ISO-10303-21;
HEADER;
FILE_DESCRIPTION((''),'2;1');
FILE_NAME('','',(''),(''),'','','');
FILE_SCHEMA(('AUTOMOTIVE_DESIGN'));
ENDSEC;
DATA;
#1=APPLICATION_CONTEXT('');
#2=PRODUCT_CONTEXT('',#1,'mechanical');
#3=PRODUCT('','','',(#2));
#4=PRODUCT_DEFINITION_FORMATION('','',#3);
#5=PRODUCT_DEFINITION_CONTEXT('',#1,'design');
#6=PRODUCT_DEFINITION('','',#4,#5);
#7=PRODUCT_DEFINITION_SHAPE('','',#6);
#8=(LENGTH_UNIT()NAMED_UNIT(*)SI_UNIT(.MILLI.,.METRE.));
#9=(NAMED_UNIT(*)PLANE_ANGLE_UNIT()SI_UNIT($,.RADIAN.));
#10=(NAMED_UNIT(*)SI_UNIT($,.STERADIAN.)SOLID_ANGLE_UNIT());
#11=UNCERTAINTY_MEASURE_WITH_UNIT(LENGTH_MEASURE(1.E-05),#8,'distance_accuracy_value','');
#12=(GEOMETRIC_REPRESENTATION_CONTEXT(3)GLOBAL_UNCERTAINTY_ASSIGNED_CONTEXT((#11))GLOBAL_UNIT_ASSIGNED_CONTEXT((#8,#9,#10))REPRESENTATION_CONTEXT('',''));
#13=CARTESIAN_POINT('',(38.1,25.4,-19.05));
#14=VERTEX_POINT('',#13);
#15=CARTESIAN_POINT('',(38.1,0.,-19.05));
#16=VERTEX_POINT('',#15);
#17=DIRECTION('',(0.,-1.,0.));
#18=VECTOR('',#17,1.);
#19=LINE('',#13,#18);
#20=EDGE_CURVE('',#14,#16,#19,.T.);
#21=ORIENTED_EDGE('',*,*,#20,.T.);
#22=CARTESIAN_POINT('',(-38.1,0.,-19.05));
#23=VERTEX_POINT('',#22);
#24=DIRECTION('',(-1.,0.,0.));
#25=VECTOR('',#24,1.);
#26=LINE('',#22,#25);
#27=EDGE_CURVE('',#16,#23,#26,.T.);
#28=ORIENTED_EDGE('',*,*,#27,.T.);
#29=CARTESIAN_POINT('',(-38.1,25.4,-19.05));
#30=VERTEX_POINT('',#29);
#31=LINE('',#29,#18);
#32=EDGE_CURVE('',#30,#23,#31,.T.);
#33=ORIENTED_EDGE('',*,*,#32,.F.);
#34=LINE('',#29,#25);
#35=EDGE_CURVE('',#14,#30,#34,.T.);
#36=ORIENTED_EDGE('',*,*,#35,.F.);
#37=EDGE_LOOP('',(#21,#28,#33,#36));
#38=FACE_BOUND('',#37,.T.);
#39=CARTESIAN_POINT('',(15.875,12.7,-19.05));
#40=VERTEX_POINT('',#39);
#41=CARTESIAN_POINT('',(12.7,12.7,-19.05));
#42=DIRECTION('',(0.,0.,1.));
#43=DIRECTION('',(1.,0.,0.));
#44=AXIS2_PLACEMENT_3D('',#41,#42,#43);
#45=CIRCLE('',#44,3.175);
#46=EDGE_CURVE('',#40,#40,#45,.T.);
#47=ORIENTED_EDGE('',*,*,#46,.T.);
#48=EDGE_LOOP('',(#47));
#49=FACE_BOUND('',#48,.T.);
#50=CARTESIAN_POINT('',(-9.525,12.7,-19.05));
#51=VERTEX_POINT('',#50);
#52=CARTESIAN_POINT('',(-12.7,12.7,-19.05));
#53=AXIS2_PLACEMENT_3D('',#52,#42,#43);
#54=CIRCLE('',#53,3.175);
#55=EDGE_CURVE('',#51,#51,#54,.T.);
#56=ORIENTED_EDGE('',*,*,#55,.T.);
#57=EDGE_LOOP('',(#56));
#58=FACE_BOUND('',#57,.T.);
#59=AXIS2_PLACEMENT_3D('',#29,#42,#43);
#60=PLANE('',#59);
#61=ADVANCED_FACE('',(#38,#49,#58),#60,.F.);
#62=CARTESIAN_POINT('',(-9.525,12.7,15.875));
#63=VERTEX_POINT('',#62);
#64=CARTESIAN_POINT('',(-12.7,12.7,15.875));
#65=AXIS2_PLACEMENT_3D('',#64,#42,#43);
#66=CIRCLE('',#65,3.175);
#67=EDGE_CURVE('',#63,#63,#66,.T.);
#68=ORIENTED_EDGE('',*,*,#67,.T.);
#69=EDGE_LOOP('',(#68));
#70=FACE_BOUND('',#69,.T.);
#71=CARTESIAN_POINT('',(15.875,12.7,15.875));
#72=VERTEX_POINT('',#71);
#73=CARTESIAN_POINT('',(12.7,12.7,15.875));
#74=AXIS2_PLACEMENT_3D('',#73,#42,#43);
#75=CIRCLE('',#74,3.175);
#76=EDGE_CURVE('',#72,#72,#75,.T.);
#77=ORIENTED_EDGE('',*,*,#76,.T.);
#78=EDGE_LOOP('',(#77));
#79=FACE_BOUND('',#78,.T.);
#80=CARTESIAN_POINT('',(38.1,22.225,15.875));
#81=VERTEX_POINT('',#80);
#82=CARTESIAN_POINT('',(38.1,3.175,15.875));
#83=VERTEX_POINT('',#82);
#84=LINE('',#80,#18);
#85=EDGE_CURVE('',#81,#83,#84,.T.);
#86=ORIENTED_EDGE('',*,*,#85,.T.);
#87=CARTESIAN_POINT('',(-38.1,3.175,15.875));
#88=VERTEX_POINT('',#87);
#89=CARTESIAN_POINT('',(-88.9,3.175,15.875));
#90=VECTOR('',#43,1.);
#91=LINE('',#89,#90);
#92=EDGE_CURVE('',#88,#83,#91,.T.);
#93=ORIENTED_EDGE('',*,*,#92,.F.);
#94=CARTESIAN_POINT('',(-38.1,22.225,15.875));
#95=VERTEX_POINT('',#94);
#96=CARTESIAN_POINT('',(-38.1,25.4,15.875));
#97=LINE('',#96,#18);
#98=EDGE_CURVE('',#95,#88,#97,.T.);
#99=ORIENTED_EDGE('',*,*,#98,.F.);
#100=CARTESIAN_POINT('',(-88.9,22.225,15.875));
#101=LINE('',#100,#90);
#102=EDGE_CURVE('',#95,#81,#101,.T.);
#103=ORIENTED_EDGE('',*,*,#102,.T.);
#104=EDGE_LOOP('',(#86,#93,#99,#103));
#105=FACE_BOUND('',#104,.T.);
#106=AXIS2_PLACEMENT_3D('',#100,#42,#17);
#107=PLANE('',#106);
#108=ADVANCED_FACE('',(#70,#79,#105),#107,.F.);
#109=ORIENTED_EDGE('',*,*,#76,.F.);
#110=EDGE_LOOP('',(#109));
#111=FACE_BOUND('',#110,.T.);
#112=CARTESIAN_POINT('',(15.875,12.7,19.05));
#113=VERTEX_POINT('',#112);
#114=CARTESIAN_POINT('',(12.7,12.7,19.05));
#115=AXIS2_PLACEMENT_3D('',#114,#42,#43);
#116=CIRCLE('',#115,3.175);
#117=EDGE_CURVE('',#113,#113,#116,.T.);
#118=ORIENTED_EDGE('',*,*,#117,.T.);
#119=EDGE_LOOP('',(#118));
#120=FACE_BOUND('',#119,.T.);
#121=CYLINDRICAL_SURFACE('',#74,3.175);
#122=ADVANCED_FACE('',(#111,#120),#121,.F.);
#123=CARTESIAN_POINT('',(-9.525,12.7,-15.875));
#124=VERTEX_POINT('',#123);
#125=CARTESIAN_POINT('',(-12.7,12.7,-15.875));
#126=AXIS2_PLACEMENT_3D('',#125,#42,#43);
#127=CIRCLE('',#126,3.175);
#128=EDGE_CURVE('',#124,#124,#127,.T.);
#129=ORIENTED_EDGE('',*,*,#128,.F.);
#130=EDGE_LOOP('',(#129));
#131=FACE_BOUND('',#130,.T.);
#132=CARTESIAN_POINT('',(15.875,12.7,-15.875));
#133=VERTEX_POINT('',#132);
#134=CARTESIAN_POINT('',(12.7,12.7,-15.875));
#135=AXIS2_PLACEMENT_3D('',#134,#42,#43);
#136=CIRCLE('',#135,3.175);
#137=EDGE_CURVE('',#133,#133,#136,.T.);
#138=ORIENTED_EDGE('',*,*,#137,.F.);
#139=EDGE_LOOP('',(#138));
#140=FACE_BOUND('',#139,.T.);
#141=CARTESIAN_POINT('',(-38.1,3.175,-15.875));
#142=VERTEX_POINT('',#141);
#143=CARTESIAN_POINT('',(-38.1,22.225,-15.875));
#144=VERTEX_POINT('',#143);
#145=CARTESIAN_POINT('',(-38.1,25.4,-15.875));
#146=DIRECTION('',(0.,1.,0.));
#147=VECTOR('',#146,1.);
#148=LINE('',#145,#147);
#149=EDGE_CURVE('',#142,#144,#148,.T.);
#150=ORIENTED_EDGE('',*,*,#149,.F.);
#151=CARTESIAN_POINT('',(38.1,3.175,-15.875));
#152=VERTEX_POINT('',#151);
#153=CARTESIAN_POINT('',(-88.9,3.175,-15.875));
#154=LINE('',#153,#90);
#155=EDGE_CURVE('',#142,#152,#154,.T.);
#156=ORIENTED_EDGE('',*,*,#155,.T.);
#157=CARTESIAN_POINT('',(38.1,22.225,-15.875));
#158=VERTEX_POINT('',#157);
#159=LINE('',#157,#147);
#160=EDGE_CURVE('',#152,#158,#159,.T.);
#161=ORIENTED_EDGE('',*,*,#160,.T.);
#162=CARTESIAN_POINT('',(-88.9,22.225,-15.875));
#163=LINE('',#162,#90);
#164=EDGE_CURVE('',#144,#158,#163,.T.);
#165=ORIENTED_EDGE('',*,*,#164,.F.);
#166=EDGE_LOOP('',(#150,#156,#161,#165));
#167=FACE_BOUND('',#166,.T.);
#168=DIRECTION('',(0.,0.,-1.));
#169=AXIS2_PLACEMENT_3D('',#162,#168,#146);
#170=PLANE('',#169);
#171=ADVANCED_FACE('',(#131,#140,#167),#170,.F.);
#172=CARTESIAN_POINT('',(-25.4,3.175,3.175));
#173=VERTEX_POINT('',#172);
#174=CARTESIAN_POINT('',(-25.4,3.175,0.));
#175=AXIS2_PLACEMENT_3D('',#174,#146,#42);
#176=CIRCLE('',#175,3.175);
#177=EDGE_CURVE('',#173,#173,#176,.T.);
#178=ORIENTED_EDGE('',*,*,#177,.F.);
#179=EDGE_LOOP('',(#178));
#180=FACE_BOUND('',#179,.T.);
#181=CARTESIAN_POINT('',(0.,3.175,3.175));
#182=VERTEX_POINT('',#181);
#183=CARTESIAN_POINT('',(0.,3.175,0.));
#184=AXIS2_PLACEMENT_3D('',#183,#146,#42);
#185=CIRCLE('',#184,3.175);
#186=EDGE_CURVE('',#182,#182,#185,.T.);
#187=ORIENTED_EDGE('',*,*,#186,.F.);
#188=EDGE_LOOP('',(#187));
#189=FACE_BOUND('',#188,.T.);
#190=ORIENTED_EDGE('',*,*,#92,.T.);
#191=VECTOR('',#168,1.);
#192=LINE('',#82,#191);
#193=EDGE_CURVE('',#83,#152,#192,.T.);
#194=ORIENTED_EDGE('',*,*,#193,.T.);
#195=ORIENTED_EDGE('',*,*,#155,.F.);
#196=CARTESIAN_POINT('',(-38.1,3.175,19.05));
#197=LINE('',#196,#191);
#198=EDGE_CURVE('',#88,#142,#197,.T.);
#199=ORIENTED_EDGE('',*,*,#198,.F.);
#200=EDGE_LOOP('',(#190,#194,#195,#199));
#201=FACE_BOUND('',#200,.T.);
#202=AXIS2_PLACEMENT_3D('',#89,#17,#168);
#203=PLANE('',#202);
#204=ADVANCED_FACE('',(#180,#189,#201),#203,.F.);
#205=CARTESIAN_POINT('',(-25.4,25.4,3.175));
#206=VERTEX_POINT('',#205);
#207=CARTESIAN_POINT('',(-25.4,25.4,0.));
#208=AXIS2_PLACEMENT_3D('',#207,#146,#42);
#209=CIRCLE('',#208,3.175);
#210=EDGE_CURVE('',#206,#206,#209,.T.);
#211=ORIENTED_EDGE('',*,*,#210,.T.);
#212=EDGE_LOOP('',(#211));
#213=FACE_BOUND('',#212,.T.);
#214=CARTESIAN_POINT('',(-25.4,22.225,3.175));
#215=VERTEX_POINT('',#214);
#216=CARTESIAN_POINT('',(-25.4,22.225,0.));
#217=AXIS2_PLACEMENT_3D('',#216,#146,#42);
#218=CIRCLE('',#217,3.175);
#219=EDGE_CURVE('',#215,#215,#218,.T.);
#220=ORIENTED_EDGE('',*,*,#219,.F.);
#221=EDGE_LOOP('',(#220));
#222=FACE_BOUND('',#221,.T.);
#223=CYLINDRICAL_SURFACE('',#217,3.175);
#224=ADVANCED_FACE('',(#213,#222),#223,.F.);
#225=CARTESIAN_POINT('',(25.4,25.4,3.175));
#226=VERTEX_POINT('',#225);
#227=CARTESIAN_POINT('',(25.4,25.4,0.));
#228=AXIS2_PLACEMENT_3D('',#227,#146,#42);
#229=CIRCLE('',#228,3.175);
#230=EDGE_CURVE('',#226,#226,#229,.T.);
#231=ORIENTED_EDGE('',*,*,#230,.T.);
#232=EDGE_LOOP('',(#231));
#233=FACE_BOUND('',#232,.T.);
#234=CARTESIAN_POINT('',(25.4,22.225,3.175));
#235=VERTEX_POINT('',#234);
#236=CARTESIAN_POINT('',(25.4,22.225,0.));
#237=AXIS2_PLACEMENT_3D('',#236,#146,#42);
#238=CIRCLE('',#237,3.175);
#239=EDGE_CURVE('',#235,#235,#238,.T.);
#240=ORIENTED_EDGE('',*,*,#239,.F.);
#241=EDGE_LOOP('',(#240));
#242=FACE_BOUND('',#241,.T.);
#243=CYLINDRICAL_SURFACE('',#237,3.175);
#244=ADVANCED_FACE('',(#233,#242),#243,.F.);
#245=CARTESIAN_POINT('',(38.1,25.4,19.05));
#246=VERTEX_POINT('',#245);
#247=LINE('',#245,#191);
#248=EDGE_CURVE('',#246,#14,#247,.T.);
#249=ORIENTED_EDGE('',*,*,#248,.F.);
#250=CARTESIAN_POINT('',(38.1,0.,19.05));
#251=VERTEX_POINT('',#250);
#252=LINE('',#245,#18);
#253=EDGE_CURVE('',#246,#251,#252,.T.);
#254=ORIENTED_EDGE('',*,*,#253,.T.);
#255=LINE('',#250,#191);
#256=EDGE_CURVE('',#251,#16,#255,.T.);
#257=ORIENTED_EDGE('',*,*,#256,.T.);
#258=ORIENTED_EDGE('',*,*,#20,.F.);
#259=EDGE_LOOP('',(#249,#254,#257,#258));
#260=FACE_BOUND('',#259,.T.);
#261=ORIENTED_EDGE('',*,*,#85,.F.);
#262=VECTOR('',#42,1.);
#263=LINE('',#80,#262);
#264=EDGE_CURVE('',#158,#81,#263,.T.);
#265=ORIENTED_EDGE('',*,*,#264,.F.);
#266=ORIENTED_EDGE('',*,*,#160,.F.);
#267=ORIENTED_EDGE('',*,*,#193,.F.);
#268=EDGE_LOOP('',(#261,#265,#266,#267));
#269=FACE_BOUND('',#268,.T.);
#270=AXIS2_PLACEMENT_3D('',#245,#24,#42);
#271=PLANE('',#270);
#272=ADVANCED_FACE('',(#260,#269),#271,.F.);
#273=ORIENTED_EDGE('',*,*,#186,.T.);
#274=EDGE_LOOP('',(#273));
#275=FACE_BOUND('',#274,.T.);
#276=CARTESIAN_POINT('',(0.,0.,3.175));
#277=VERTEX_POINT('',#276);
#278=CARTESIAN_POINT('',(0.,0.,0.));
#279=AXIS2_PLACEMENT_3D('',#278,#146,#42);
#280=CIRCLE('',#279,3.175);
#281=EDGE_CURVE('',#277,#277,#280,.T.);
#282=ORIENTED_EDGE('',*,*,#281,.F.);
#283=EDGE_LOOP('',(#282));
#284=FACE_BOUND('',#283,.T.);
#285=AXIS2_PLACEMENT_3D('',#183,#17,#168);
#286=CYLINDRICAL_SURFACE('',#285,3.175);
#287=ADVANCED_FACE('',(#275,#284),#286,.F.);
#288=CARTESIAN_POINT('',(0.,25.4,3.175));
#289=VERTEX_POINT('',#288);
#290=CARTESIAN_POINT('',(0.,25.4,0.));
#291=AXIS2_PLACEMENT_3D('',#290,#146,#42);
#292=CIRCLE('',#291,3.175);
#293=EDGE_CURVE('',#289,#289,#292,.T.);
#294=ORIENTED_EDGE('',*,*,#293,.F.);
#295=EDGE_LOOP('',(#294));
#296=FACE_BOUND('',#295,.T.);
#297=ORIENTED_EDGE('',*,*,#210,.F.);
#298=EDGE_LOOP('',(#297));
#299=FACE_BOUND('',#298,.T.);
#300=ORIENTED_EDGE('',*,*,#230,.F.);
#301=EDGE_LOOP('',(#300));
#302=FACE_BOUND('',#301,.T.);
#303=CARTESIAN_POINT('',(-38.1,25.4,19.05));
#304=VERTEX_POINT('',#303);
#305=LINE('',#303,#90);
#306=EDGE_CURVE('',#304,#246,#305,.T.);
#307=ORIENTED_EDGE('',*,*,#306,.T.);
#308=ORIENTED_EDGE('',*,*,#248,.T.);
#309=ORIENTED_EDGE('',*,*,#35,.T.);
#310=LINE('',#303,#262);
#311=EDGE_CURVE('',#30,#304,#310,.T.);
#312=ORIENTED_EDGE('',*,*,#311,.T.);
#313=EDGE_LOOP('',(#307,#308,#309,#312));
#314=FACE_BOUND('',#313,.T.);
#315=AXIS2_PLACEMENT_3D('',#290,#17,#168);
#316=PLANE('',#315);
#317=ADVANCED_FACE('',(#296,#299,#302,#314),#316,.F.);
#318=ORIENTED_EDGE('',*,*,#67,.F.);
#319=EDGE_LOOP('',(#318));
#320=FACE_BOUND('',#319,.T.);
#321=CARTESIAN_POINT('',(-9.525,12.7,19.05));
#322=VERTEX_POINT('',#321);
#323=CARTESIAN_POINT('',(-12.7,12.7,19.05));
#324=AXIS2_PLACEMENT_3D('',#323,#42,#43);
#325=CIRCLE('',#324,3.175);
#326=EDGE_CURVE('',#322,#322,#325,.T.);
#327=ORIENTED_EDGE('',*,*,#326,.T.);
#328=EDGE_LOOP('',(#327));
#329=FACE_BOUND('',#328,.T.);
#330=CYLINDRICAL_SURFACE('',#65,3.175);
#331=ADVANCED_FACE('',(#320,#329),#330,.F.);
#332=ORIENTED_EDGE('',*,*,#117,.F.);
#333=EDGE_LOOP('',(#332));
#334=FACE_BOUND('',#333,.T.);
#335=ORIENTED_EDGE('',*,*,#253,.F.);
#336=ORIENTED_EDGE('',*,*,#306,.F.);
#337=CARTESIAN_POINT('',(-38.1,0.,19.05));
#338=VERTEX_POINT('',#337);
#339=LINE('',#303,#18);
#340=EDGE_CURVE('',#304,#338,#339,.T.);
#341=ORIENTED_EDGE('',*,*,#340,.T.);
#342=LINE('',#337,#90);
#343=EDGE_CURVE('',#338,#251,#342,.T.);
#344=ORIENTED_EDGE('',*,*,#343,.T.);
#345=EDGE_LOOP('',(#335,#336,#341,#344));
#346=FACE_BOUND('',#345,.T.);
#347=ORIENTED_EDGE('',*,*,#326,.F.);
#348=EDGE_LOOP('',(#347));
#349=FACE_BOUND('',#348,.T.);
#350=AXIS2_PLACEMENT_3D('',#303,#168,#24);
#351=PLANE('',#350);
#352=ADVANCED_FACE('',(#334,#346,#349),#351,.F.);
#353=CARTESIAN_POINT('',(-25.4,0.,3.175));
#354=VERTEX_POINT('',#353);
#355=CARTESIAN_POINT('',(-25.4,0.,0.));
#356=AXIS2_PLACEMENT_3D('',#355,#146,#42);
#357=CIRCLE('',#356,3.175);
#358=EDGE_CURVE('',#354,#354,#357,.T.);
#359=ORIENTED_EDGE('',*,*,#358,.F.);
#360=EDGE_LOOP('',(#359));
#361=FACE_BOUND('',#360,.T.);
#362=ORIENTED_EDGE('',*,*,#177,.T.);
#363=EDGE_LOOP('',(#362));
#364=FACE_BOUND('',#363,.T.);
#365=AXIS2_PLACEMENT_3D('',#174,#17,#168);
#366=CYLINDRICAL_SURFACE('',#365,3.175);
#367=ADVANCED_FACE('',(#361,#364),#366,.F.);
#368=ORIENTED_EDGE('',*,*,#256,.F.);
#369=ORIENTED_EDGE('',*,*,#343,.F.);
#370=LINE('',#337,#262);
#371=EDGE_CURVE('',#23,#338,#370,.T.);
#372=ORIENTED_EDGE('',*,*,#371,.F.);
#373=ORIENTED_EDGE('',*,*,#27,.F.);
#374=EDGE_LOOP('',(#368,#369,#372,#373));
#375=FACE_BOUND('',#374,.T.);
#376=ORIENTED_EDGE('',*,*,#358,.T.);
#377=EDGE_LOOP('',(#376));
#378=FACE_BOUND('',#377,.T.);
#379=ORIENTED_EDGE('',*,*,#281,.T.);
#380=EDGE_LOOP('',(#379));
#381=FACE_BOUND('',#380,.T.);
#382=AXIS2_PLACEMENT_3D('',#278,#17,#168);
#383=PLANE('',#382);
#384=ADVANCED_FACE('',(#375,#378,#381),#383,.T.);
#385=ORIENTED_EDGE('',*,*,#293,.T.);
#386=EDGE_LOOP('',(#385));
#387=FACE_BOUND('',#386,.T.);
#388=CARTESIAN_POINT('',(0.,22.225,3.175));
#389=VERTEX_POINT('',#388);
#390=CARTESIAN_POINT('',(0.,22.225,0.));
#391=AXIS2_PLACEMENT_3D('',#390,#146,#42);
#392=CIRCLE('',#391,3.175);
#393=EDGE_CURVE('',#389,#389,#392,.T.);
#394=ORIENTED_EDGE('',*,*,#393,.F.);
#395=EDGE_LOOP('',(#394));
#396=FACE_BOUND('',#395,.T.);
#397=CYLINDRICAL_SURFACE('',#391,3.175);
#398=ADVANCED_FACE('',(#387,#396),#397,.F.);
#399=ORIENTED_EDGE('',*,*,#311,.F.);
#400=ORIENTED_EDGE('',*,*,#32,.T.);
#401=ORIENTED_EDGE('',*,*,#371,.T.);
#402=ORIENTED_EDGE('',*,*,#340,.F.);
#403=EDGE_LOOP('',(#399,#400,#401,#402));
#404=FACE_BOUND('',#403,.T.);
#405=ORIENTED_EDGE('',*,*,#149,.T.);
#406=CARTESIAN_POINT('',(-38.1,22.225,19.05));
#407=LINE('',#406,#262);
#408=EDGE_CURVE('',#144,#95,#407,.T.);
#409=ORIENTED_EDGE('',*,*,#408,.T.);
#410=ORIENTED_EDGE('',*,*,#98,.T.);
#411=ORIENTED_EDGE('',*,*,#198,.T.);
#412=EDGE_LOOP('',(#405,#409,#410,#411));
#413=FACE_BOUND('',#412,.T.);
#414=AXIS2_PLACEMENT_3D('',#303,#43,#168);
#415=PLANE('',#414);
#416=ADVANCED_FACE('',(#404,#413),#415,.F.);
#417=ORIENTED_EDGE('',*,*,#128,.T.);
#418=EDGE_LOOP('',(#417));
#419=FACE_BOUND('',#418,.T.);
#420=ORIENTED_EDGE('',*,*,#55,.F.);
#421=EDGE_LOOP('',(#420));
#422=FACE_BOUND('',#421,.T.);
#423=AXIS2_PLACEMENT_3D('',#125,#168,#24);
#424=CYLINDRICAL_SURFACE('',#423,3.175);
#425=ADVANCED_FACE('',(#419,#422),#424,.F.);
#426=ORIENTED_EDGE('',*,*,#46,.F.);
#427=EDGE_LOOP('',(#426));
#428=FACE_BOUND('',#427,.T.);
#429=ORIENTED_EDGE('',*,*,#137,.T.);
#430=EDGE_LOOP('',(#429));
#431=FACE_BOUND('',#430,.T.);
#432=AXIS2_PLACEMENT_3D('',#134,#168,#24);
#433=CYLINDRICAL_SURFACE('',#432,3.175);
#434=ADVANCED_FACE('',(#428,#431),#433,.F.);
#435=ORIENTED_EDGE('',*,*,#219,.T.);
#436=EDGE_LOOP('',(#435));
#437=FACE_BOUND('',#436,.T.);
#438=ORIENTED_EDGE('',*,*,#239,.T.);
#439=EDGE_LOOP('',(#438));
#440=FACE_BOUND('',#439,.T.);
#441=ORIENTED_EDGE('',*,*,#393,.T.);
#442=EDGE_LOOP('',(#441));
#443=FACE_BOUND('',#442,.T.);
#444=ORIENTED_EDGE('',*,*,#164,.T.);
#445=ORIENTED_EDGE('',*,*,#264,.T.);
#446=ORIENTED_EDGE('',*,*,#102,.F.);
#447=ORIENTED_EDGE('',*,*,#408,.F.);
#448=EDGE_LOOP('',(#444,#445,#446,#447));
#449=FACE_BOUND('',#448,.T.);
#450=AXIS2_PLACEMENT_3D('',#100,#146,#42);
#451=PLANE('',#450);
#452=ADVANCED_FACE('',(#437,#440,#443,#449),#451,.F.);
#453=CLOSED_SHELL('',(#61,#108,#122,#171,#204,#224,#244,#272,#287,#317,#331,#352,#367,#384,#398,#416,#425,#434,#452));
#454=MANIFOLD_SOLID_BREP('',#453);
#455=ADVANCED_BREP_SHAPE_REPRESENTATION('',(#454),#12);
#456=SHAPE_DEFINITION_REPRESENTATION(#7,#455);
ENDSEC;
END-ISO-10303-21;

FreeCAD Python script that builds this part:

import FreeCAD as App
import Part
import Sketcher

V = App.Vector
Q = App.Units.Quantity


def add_polygon(sketch, points):
    """Adds a closed chain of lines whose ends are joined by coincident constraints."""
    first, n = sketch.GeometryCount, len(points)
    for a, b in zip(points, points[1:] + points[:1]):
        sketch.addGeometry(Part.LineSegment(App.Vector(*a, 0), App.Vector(*b, 0)), False)
    for i in range(n):
        sketch.addConstraint(Sketcher.Constraint("Coincident", first + i, 2, first + (i + 1) % n, 1))

doc = App.newDocument("Part")
body = doc.addObject("PartDesign::Body", "Body")

sketch1 = body.newObject("Sketcher::SketchObject", "Sketch")
sketch1.AttachmentSupport = (doc.getObject("XZ_Plane"), [""])
sketch1.MapMode = "FlatFace"
add_polygon(sketch1, [(-38, -19), (-38, 19), (38, 19), (38, -19)])
sketch1.addConstraint([
    Sketcher.Constraint("Vertical", 0),
    Sketcher.Constraint("Horizontal", 1),
    Sketcher.Constraint("Vertical", 2),
    Sketcher.Constraint("Horizontal", 3),
    Sketcher.Constraint("Symmetric", 0, 2, 2, 2, -1, 1),
    Sketcher.Constraint("DistanceX", 1, 1, 1, 2, Q("3 in")),
    Sketcher.Constraint("DistanceY", 0, 1, 0, 2, Q("1.5 in")),
])
pad1 = body.newObject("PartDesign::Pad", "Pad")
pad1.Profile = sketch1
pad1.Length = Q("1 in")
pad1.Reversed = True

sketch2 = body.newObject("Sketcher::SketchObject", "Sketch001")
sketch2.AttachmentSupport = (doc.getObject("YZ_Plane"), [""])
sketch2.MapMode = "FlatFace"
sketch2.AttachmentOffset = App.Placement(V(0, 0, 1.5 * 25.4), App.Rotation())
add_polygon(sketch2, [(22, 16), (3, 16), (3, -16), (22, -16)])
sketch2.addConstraint([
    Sketcher.Constraint("Horizontal", 0),
    Sketcher.Constraint("Vertical", 1),
    Sketcher.Constraint("Horizontal", 2),
    Sketcher.Constraint("Vertical", 3),
    Sketcher.Constraint("DistanceX", 0, 2, 0, 1, Q("0.75 in")),
    Sketcher.Constraint("DistanceY", 1, 2, 1, 1, Q("1.25 in")),
    Sketcher.Constraint("DistanceX", -1, 1, 0, 2, Q("0.125 in")),
    Sketcher.Constraint("DistanceY", -1, 1, 0, 2, Q("0.625 in")),
])
pocket1 = body.newObject("PartDesign::Pocket", "Pocket")
pocket1.Profile = sketch2
pocket1.Length = Q("5 in")

sketch3 = body.newObject("Sketcher::SketchObject", "Sketch002")
sketch3.AttachmentSupport = (doc.getObject("XZ_Plane"), [""])
sketch3.MapMode = "FlatFace"
sketch3.AttachmentOffset = App.Placement(V(0, 0, -1 * 25.4), App.Rotation())
sketch3.addGeometry([
    Part.Circle(V(-25.4, 0, 0), V(0, 0, 1), 3.2),
    Part.Circle(V(0, 0, 0), V(0, 0, 1), 3.2),
], False)
sketch3.addConstraint([
    Sketcher.Constraint("Coincident", 1, 3, -1, 1),
    Sketcher.Constraint("Equal", 0, 1),
    Sketcher.Constraint("PointOnObject", 0, 3, -1),
    Sketcher.Constraint("Diameter", 0, Q("0.25 in")),
    Sketcher.Constraint("DistanceX", 0, 3, -1, 1, Q("1 in")),
])
pocket2 = body.newObject("PartDesign::Pocket", "Pocket001")
pocket2.Profile = sketch3
pocket2.Length = Q("0.125 in")
pocket2.Reversed = True
doc.recompute()

datumplane = body.newObject("PartDesign::Plane", "DatumPlane")
datumplane.AttachmentSupport = (doc.getObject("XZ_Plane"), [""])
datumplane.MapMode = "FlatFace"
datumplane.AttachmentOffset = App.Placement(V(0, 0, -0.5 * 25.4), App.Rotation())
mirrored = body.newObject("PartDesign::Mirrored", "Mirrored")
mirrored.Originals = [pocket2]
mirrored.MirrorPlane = (datumplane, [""])
body.Tip = mirrored

sketch4 = body.newObject("Sketcher::SketchObject", "Sketch003")
sketch4.AttachmentSupport = (doc.getObject("XY_Plane"), [""])
sketch4.MapMode = "FlatFace"
sketch4.AttachmentOffset = App.Placement(V(0, 0, 0.75 * 25.4), App.Rotation())
sketch4.addGeometry([
    Part.Circle(V(-12.7, 12.7, 0), V(0, 0, 1), 3.2),
    Part.Circle(V(12.7, 12.7, 0), V(0, 0, 1), 3.2),
], False)
sketch4.addConstraint([
    Sketcher.Constraint("Equal", 0, 1),
    Sketcher.Constraint("Symmetric", 0, 3, 1, 3, -2),
    Sketcher.Constraint("Diameter", 0, Q("0.25 in")),
    Sketcher.Constraint("DistanceX", 0, 3, 1, 3, Q("1 in")),
    Sketcher.Constraint("DistanceY", -1, 1, 0, 3, Q("0.5 in")),
])
pocket3 = body.newObject("PartDesign::Pocket", "Pocket002")
pocket3.Profile = sketch4
pocket3.Length = Q("0.125 in")
doc.recompute()

mirrored2 = body.newObject("PartDesign::Mirrored", "Mirrored001")
mirrored2.Originals = [pocket3]
mirrored2.MirrorPlane = (doc.getObject("XY_Plane"), [""])
body.Tip = mirrored2

sketch5 = body.newObject("Sketcher::SketchObject", "Sketch004")
sketch5.AttachmentSupport = (doc.getObject("XZ_Plane"), [""])
sketch5.MapMode = "FlatFace"
sketch5.AttachmentOffset = App.Placement(V(0, 0, -1 * 25.4), App.Rotation())
sketch5.addGeometry(Part.Circle(V(25.4, 0, 0), V(0, 0, 1), 3.2), False)
sketch5.addConstraint([
    Sketcher.Constraint("PointOnObject", 0, 3, -1),
    Sketcher.Constraint("Diameter", 0, Q("0.25 in")),
    Sketcher.Constraint("DistanceX", -1, 1, 0, 3, Q("1 in")),
])
pocket4 = body.newObject("PartDesign::Pocket", "Pocket003")
pocket4.Profile = sketch5
pocket4.Length = Q("0.125 in")
pocket4.Reversed = True

doc.recompute()
